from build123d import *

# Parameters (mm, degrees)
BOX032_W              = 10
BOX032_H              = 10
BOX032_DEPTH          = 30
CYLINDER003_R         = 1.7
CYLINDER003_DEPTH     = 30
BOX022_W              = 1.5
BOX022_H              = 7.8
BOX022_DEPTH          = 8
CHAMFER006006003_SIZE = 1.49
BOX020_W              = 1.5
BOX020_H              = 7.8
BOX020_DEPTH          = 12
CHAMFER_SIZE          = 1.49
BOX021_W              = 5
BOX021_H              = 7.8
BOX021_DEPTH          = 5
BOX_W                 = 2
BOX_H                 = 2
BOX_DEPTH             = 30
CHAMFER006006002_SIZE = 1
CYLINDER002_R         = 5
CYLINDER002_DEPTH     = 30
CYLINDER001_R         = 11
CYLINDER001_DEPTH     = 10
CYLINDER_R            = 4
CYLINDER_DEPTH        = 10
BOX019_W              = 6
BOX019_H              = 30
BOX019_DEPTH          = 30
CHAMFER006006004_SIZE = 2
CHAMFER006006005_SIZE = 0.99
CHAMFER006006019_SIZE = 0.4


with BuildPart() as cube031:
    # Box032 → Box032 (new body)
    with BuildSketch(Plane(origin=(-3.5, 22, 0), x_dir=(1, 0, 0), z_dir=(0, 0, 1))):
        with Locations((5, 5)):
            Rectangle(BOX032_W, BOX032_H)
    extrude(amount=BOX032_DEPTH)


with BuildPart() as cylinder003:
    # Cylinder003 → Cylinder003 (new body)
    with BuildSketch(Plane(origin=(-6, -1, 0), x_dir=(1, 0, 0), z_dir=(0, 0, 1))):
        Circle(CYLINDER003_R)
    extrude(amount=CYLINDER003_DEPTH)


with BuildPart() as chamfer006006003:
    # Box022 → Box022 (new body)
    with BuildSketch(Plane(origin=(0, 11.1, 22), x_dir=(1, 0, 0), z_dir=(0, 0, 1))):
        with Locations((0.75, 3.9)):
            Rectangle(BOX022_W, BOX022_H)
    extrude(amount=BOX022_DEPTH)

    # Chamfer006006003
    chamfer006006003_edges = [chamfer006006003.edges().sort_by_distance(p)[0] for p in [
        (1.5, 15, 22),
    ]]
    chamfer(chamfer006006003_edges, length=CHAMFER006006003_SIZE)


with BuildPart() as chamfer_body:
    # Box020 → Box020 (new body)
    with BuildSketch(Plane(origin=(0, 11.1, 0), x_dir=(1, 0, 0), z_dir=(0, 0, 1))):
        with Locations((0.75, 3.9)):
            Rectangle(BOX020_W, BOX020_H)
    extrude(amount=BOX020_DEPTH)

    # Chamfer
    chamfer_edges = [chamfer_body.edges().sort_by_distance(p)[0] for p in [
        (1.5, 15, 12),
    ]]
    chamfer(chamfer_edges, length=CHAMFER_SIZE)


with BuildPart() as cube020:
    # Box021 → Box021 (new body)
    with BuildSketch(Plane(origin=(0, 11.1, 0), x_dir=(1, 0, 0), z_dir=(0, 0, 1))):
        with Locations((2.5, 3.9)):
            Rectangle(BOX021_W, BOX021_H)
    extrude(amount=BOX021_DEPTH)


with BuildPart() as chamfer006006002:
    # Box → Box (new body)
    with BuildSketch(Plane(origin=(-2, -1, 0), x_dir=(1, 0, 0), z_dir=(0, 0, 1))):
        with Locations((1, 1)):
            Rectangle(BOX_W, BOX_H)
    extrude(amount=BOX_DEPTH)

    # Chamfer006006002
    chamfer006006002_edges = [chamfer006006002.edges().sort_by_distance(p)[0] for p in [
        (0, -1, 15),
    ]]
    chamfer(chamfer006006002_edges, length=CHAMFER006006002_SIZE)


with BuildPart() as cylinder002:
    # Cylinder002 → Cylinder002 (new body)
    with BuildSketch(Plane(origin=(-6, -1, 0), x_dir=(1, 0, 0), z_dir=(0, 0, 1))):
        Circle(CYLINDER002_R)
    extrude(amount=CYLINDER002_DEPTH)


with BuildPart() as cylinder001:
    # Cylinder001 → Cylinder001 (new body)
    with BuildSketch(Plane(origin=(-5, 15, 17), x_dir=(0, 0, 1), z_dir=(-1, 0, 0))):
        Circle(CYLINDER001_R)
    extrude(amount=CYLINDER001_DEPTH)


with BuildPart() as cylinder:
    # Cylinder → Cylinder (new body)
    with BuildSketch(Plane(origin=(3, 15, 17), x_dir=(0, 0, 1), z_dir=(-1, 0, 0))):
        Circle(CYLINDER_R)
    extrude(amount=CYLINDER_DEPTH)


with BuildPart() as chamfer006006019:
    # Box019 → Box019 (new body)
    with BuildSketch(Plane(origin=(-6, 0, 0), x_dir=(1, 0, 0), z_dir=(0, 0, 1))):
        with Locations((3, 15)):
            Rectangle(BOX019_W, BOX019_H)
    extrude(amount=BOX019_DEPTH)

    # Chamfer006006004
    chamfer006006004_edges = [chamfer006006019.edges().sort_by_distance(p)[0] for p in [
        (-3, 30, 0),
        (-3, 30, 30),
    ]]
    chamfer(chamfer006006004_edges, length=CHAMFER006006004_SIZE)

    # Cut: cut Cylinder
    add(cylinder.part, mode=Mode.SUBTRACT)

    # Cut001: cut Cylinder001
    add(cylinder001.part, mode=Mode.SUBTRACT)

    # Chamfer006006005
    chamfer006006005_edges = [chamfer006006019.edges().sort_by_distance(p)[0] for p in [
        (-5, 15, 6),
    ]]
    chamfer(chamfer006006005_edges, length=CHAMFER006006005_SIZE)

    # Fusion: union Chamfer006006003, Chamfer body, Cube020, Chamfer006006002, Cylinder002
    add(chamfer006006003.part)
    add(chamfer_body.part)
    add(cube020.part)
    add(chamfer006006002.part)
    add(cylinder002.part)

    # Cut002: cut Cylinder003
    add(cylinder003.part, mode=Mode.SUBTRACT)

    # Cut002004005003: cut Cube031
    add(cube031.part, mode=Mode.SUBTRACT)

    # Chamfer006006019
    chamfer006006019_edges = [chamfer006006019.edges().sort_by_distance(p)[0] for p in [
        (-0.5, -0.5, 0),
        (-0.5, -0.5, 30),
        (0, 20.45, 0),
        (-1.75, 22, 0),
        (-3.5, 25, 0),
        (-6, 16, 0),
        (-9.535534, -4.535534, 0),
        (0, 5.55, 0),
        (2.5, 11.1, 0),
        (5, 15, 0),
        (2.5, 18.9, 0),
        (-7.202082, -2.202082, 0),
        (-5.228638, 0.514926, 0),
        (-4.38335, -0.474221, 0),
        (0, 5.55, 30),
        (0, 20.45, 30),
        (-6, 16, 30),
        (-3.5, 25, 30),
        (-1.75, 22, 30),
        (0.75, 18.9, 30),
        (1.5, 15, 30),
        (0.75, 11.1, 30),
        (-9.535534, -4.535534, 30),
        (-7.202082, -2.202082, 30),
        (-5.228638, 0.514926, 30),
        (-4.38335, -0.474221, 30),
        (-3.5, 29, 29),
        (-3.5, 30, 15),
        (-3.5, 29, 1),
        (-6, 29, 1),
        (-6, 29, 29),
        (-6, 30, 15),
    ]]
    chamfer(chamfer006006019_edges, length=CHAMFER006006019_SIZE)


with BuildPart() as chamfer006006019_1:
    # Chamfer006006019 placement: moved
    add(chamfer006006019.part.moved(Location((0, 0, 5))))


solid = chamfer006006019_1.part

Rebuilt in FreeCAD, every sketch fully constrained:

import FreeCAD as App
import Part
import Sketcher
Q = App.Units.Quantity


def edges_at(feature, points):
    """Names of the edges that pass closest to the given points."""
    edges = feature.Shape.Edges
    near = lambda p: min(range(len(edges)), key=lambda i: edges[i].distToShape(Part.Vertex(*p))[0])
    return sorted({f"Edge{near(p) + 1}" for p in points})


def add_polygon(sketch, points):
    """Adds a closed chain of lines whose ends are joined by coincident constraints."""
    first, n = sketch.GeometryCount, len(points)
    for a, b in zip(points, points[1:] + points[:1]):
        sketch.addGeometry(Part.LineSegment(App.Vector(*a, 0), App.Vector(*b, 0)), False)
    for i in range(n):
        sketch.addConstraint(Sketcher.Constraint("Coincident", first + i, 2, first + (i + 1) % n, 1))

doc = App.newDocument("Part")
body = doc.addObject("PartDesign::Body", "Body")

sketch1 = doc.addObject("Sketcher::SketchObject", "Sketch")
body.addObject(sketch1)
sketch1.AttachmentSupport = (doc.XY_Plane, [""])
sketch1.MapMode = "FlatFace"
add_polygon(sketch1, [(-4, 32), (-4, 22), (6, 22), (6, 32)])
sketch1.addConstraint([
    Sketcher.Constraint("Vertical", 0),
    Sketcher.Constraint("Horizontal", 1),
    Sketcher.Constraint("Vertical", 2),
    Sketcher.Constraint("Horizontal", 3),
    Sketcher.Constraint("Equal", 3, 0),
    Sketcher.Constraint("DistanceX", 1, 1, 1, 2, Q("10 mm")),
    Sketcher.Constraint("DistanceY", -1, 1, 0, 2, Q("22 mm")),
    Sketcher.Constraint("DistanceX", 0, 2, -1, 1, Q("3.5 mm")),
])
pad1 = doc.addObject("PartDesign::Pad", "Pad")
body.addObject(pad1)
pad1.Profile = sketch1
pad1.Length = 30
body2 = doc.addObject("PartDesign::Body", "Body001")

sketch2 = doc.addObject("Sketcher::SketchObject", "Sketch001")
body2.addObject(sketch2)
sketch2.AttachmentSupport = (doc.getObject("XY_Plane001"), [""])
sketch2.MapMode = "FlatFace"
sketch2.addGeometry(Part.Circle(App.Vector(-6, -1, 0), App.Vector(0, 0, 1), 1.7), False)
sketch2.addConstraint([
    Sketcher.Constraint("Diameter", 0, Q("3.4 mm")),
    Sketcher.Constraint("DistanceX", 0, 3, -1, 1, Q("6 mm")),
    Sketcher.Constraint("DistanceY", 0, 3, -1, 1, Q("1 mm")),
])
pad2 = doc.addObject("PartDesign::Pad", "Pad001")
body2.addObject(pad2)
pad2.Profile = sketch2
pad2.Length = 30
body3 = doc.addObject("PartDesign::Body", "Body002")

sketch3 = doc.addObject("Sketcher::SketchObject", "Sketch002")
body3.addObject(sketch3)
sketch3.AttachmentSupport = (doc.getObject("XY_Plane002"), [""])
sketch3.MapMode = "FlatFace"
sketch3.AttachmentOffset = App.Placement(App.Vector(0, 0, 22), App.Rotation())
add_polygon(sketch3, [(0, 18.9), (0, 11.1), (1.5, 11.1), (1.5, 18.9)])
sketch3.addConstraint([
    Sketcher.Constraint("Vertical", 0),
    Sketcher.Constraint("Horizontal", 1),
    Sketcher.Constraint("Vertical", 2),
    Sketcher.Constraint("Horizontal", 3),
    Sketcher.Constraint("PointOnObject", 0, 2, -2),
    Sketcher.Constraint("DistanceX", 1, 1, 1, 2, Q("1.5 mm")),
    Sketcher.Constraint("DistanceY", 0, 2, 0, 1, Q("7.8 mm")),
    Sketcher.Constraint("DistanceY", -1, 1, 0, 2, Q("11.1 mm")),
])
pad3 = doc.addObject("PartDesign::Pad", "Pad002")
body3.addObject(pad3)
pad3.Profile = sketch3
pad3.Length = 8
doc.recompute()

chamfer = doc.addObject("PartDesign::Chamfer", "Chamfer")
body3.addObject(chamfer)
chamfer.Base = (pad3, edges_at(pad3, [(1.5, 15, 22)]))
chamfer.Size = 1.49
body4 = doc.addObject("PartDesign::Body", "Body003")

sketch4 = doc.addObject("Sketcher::SketchObject", "Sketch003")
body4.addObject(sketch4)
sketch4.AttachmentSupport = (doc.getObject("XY_Plane003"), [""])
sketch4.MapMode = "FlatFace"
add_polygon(sketch4, [(0, 18.9), (0, 11.1), (1.5, 11.1), (1.5, 18.9)])
sketch4.addConstraint([
    Sketcher.Constraint("Vertical", 0),
    Sketcher.Constraint("Horizontal", 1),
    Sketcher.Constraint("Vertical", 2),
    Sketcher.Constraint("Horizontal", 3),
    Sketcher.Constraint("PointOnObject", 0, 2, -2),
    Sketcher.Constraint("DistanceX", 1, 1, 1, 2, Q("1.5 mm")),
    Sketcher.Constraint("DistanceY", 0, 2, 0, 1, Q("7.8 mm")),
    Sketcher.Constraint("DistanceY", -1, 1, 0, 2, Q("11.1 mm")),
])
pad4 = doc.addObject("PartDesign::Pad", "Pad003")
body4.addObject(pad4)
pad4.Profile = sketch4
pad4.Length = 12
doc.recompute()

chamfer2 = doc.addObject("PartDesign::Chamfer", "Chamfer001")
body4.addObject(chamfer2)
chamfer2.Base = (pad4, edges_at(pad4, [(1.5, 15, 12)]))
chamfer2.Size = 1.49
body5 = doc.addObject("PartDesign::Body", "Body004")

sketch5 = doc.addObject("Sketcher::SketchObject", "Sketch004")
body5.addObject(sketch5)
sketch5.AttachmentSupport = (doc.getObject("XY_Plane004"), [""])
sketch5.MapMode = "FlatFace"
add_polygon(sketch5, [(0, 19), (0, 11), (5, 11), (5, 19)])
sketch5.addConstraint([
    Sketcher.Constraint("Vertical", 0),
    Sketcher.Constraint("Horizontal", 1),
    Sketcher.Constraint("Vertical", 2),
    Sketcher.Constraint("Horizontal", 3),
    Sketcher.Constraint("PointOnObject", 0, 2, -2),
    Sketcher.Constraint("DistanceX", 1, 1, 1, 2, Q("5 mm")),
    Sketcher.Constraint("DistanceY", 0, 2, 0, 1, Q("7.8 mm")),
    Sketcher.Constraint("DistanceY", -1, 1, 0, 2, Q("11.1 mm")),
])
pad5 = doc.addObject("PartDesign::Pad", "Pad004")
body5.addObject(pad5)
pad5.Profile = sketch5
pad5.Length = 5
body6 = doc.addObject("PartDesign::Body", "Body005")

sketch6 = doc.addObject("Sketcher::SketchObject", "Sketch005")
body6.addObject(sketch6)
sketch6.AttachmentSupport = (doc.getObject("XY_Plane005"), [""])
sketch6.MapMode = "FlatFace"
add_polygon(sketch6, [(-2, 1), (-2, -1), (0, -1), (0, 1)])
sketch6.addConstraint([
    Sketcher.Constraint("Vertical", 0),
    Sketcher.Constraint("Horizontal", 1),
    Sketcher.Constraint("Vertical", 2),
    Sketcher.Constraint("Horizontal", 3),
    Sketcher.Constraint("Symmetric", 1, 2, 2, 2, -1, 1),
    Sketcher.Constraint("Equal", 3, 0),
    Sketcher.Constraint("DistanceX", 1, 1, 1, 2, Q("2 mm")),
])
pad6 = doc.addObject("PartDesign::Pad", "Pad005")
body6.addObject(pad6)
pad6.Profile = sketch6
pad6.Length = 30
doc.recompute()

chamfer3 = doc.addObject("PartDesign::Chamfer", "Chamfer002")
body6.addObject(chamfer3)
chamfer3.Base = (pad6, edges_at(pad6, [(0, -1, 15)]))
chamfer3.Size = 1
body7 = doc.addObject("PartDesign::Body", "Body006")

sketch7 = doc.addObject("Sketcher::SketchObject", "Sketch006")
body7.addObject(sketch7)
sketch7.AttachmentSupport = (doc.getObject("XY_Plane006"), [""])
sketch7.MapMode = "FlatFace"
sketch7.addGeometry(Part.Circle(App.Vector(-6, -1, 0), App.Vector(0, 0, 1), 5), False)
sketch7.addConstraint([
    Sketcher.Constraint("Diameter", 0, Q("10 mm")),
    Sketcher.Constraint("DistanceX", 0, 3, -1, 1, Q("6 mm")),
    Sketcher.Constraint("DistanceY", 0, 3, -1, 1, Q("1 mm")),
])
pad7 = doc.addObject("PartDesign::Pad", "Pad006")
body7.addObject(pad7)
pad7.Profile = sketch7
pad7.Length = 30
body8 = doc.addObject("PartDesign::Body", "Body007")

sketch8 = doc.addObject("Sketcher::SketchObject", "Sketch007")
body8.addObject(sketch8)
sketch8.AttachmentSupport = (doc.getObject("YZ_Plane007"), [""])
sketch8.MapMode = "FlatFace"
sketch8.AttachmentOffset = App.Placement(App.Vector(0, 0, -5), App.Rotation())
sketch8.addGeometry(Part.Circle(App.Vector(15, 17, 0), App.Vector(0, 0, 1), 11), False)
sketch8.addConstraint([
    Sketcher.Constraint("Diameter", 0, Q("22 mm")),
    Sketcher.Constraint("DistanceX", -1, 1, 0, 3, Q("15 mm")),
    Sketcher.Constraint("DistanceY", -1, 1, 0, 3, Q("17 mm")),
])
pad8 = doc.addObject("PartDesign::Pad", "Pad007")
body8.addObject(pad8)
pad8.Profile = sketch8
pad8.Length = 10
pad8.Reversed = True
body9 = doc.addObject("PartDesign::Body", "Body008")

sketch9 = doc.addObject("Sketcher::SketchObject", "Sketch008")
body9.addObject(sketch9)
sketch9.AttachmentSupport = (doc.getObject("YZ_Plane008"), [""])
sketch9.MapMode = "FlatFace"
sketch9.AttachmentOffset = App.Placement(App.Vector(0, 0, 3), App.Rotation())
sketch9.addGeometry(Part.Circle(App.Vector(15, 17, 0), App.Vector(0, 0, 1), 4), False)
sketch9.addConstraint([
    Sketcher.Constraint("Diameter", 0, Q("8 mm")),
    Sketcher.Constraint("DistanceX", -1, 1, 0, 3, Q("15 mm")),
    Sketcher.Constraint("DistanceY", -1, 1, 0, 3, Q("17 mm")),
])
pad9 = doc.addObject("PartDesign::Pad", "Pad008")
body9.addObject(pad9)
pad9.Profile = sketch9
pad9.Length = 10
pad9.Reversed = True
body10 = doc.addObject("PartDesign::Body", "Body009")

sketch10 = doc.addObject("Sketcher::SketchObject", "Sketch009")
body10.addObject(sketch10)
sketch10.AttachmentSupport = (doc.getObject("XY_Plane009"), [""])
sketch10.MapMode = "FlatFace"
add_polygon(sketch10, [(-6, 30), (-6, 0), (0, 0), (0, 30)])
sketch10.addConstraint([
    Sketcher.Constraint("Vertical", 0),
    Sketcher.Constraint("Horizontal", 1),
    Sketcher.Constraint("Vertical", 2),
    Sketcher.Constraint("Horizontal", 3),
    Sketcher.Constraint("Coincident", 1, 2, -1, 1),
    Sketcher.Constraint("DistanceX", 1, 1, 1, 2, Q("6 mm")),
    Sketcher.Constraint("DistanceY", 0, 2, 0, 1, Q("30 mm")),
])
pad10 = doc.addObject("PartDesign::Pad", "Pad009")
body10.addObject(pad10)
pad10.Profile = sketch10
pad10.Length = 30
doc.recompute()

chamfer4 = doc.addObject("PartDesign::Chamfer", "Chamfer003")
body10.addObject(chamfer4)
chamfer4.Base = (pad10, edges_at(pad10, [(-3, 30, 0), (-3, 30, 30)]))
chamfer4.Size = 2
doc.recompute()

boolean = doc.addObject("PartDesign::Boolean", "Boolean")
body10.addObject(boolean)
boolean.Type = "Cut"
boolean.addObjects([body9])
doc.recompute()

boolean2 = doc.addObject("PartDesign::Boolean", "Boolean001")
body10.addObject(boolean2)
boolean2.Type = "Cut"
boolean2.addObjects([body8])
doc.recompute()

chamfer5 = doc.addObject("PartDesign::Chamfer", "Chamfer004")
body10.addObject(chamfer5)
chamfer5.Base = (boolean2, edges_at(boolean2, [(-5, 15, 6)]))
chamfer5.Size = 0.99
doc.recompute()

boolean3 = doc.addObject("PartDesign::Boolean", "Boolean002")
body10.addObject(boolean3)
boolean3.Type = "Fuse"
boolean3.addObjects([body3])
doc.recompute()

boolean4 = doc.addObject("PartDesign::Boolean", "Boolean003")
body10.addObject(boolean4)
boolean4.Type = "Fuse"
boolean4.addObjects([body4])
doc.recompute()

boolean5 = doc.addObject("PartDesign::Boolean", "Boolean004")
body10.addObject(boolean5)
boolean5.Type = "Fuse"
boolean5.addObjects([body5])
doc.recompute()

boolean6 = doc.addObject("PartDesign::Boolean", "Boolean005")
body10.addObject(boolean6)
boolean6.Type = "Fuse"
boolean6.addObjects([body6])
doc.recompute()

boolean7 = doc.addObject("PartDesign::Boolean", "Boolean006")
body10.addObject(boolean7)
boolean7.Type = "Fuse"
boolean7.addObjects([body7])
doc.recompute()

boolean8 = doc.addObject("PartDesign::Boolean", "Boolean007")
body10.addObject(boolean8)
boolean8.Type = "Cut"
boolean8.addObjects([body2])
doc.recompute()

boolean9 = doc.addObject("PartDesign::Boolean", "Boolean008")
body10.addObject(boolean9)
boolean9.Type = "Cut"
boolean9.addObjects([body])
doc.recompute()

chamfer6 = doc.addObject("PartDesign::Chamfer", "Chamfer005")
body10.addObject(chamfer6)
chamfer6.Base = (boolean9, edges_at(boolean9, [
    (-0.5, -0.5, 0),
    (-0.5, -0.5, 30),
    (0, 20.45, 0),
    (-1.75, 22, 0),
    (-3.5, 25, 0),
    (-6, 16, 0),
    (-9.536, -4.536, 0),
    (0, 5.55, 0),
    (2.5, 11.1, 0),
    (5, 15, 0),
    (2.5, 18.9, 0),
    (-7.7, -1, 0),
    (-7.7, -1, 0),
    (-7.7, -1, 0),
    (0, 5.55, 30),
    (0, 20.45, 30),
    (-6, 16, 30),
    (-3.5, 25, 30),
    (-1.75, 22, 30),
    (0.75, 18.9, 30),
    (1.5, 15, 30),
    (0.75, 11.1, 30),
    (-9.536, -4.536, 30),
    (-7.7, -1, 30),
    (-7.7, -1, 30),
    (-7.7, -1, 30),
    (-3.5, 29, 29),
    (-3.5, 30, 15),
    (-3.5, 29, 1),
    (-6, 29, 1),
    (-6, 29, 29),
    (-6, 30, 15),
]))
chamfer6.Size = 0.4
body11 = doc.addObject("PartDesign::Body", "Body010")
doc.recompute()

body10.Placement = App.Placement(App.Vector(0, 0, 5), App.Rotation(App.Vector(0, 0, 1), 0))
boolean10 = doc.addObject("PartDesign::Boolean", "Boolean009")
body11.addObject(boolean10)
boolean10.Type = "Fuse"
boolean10.addObjects([body10])

doc.recompute()
